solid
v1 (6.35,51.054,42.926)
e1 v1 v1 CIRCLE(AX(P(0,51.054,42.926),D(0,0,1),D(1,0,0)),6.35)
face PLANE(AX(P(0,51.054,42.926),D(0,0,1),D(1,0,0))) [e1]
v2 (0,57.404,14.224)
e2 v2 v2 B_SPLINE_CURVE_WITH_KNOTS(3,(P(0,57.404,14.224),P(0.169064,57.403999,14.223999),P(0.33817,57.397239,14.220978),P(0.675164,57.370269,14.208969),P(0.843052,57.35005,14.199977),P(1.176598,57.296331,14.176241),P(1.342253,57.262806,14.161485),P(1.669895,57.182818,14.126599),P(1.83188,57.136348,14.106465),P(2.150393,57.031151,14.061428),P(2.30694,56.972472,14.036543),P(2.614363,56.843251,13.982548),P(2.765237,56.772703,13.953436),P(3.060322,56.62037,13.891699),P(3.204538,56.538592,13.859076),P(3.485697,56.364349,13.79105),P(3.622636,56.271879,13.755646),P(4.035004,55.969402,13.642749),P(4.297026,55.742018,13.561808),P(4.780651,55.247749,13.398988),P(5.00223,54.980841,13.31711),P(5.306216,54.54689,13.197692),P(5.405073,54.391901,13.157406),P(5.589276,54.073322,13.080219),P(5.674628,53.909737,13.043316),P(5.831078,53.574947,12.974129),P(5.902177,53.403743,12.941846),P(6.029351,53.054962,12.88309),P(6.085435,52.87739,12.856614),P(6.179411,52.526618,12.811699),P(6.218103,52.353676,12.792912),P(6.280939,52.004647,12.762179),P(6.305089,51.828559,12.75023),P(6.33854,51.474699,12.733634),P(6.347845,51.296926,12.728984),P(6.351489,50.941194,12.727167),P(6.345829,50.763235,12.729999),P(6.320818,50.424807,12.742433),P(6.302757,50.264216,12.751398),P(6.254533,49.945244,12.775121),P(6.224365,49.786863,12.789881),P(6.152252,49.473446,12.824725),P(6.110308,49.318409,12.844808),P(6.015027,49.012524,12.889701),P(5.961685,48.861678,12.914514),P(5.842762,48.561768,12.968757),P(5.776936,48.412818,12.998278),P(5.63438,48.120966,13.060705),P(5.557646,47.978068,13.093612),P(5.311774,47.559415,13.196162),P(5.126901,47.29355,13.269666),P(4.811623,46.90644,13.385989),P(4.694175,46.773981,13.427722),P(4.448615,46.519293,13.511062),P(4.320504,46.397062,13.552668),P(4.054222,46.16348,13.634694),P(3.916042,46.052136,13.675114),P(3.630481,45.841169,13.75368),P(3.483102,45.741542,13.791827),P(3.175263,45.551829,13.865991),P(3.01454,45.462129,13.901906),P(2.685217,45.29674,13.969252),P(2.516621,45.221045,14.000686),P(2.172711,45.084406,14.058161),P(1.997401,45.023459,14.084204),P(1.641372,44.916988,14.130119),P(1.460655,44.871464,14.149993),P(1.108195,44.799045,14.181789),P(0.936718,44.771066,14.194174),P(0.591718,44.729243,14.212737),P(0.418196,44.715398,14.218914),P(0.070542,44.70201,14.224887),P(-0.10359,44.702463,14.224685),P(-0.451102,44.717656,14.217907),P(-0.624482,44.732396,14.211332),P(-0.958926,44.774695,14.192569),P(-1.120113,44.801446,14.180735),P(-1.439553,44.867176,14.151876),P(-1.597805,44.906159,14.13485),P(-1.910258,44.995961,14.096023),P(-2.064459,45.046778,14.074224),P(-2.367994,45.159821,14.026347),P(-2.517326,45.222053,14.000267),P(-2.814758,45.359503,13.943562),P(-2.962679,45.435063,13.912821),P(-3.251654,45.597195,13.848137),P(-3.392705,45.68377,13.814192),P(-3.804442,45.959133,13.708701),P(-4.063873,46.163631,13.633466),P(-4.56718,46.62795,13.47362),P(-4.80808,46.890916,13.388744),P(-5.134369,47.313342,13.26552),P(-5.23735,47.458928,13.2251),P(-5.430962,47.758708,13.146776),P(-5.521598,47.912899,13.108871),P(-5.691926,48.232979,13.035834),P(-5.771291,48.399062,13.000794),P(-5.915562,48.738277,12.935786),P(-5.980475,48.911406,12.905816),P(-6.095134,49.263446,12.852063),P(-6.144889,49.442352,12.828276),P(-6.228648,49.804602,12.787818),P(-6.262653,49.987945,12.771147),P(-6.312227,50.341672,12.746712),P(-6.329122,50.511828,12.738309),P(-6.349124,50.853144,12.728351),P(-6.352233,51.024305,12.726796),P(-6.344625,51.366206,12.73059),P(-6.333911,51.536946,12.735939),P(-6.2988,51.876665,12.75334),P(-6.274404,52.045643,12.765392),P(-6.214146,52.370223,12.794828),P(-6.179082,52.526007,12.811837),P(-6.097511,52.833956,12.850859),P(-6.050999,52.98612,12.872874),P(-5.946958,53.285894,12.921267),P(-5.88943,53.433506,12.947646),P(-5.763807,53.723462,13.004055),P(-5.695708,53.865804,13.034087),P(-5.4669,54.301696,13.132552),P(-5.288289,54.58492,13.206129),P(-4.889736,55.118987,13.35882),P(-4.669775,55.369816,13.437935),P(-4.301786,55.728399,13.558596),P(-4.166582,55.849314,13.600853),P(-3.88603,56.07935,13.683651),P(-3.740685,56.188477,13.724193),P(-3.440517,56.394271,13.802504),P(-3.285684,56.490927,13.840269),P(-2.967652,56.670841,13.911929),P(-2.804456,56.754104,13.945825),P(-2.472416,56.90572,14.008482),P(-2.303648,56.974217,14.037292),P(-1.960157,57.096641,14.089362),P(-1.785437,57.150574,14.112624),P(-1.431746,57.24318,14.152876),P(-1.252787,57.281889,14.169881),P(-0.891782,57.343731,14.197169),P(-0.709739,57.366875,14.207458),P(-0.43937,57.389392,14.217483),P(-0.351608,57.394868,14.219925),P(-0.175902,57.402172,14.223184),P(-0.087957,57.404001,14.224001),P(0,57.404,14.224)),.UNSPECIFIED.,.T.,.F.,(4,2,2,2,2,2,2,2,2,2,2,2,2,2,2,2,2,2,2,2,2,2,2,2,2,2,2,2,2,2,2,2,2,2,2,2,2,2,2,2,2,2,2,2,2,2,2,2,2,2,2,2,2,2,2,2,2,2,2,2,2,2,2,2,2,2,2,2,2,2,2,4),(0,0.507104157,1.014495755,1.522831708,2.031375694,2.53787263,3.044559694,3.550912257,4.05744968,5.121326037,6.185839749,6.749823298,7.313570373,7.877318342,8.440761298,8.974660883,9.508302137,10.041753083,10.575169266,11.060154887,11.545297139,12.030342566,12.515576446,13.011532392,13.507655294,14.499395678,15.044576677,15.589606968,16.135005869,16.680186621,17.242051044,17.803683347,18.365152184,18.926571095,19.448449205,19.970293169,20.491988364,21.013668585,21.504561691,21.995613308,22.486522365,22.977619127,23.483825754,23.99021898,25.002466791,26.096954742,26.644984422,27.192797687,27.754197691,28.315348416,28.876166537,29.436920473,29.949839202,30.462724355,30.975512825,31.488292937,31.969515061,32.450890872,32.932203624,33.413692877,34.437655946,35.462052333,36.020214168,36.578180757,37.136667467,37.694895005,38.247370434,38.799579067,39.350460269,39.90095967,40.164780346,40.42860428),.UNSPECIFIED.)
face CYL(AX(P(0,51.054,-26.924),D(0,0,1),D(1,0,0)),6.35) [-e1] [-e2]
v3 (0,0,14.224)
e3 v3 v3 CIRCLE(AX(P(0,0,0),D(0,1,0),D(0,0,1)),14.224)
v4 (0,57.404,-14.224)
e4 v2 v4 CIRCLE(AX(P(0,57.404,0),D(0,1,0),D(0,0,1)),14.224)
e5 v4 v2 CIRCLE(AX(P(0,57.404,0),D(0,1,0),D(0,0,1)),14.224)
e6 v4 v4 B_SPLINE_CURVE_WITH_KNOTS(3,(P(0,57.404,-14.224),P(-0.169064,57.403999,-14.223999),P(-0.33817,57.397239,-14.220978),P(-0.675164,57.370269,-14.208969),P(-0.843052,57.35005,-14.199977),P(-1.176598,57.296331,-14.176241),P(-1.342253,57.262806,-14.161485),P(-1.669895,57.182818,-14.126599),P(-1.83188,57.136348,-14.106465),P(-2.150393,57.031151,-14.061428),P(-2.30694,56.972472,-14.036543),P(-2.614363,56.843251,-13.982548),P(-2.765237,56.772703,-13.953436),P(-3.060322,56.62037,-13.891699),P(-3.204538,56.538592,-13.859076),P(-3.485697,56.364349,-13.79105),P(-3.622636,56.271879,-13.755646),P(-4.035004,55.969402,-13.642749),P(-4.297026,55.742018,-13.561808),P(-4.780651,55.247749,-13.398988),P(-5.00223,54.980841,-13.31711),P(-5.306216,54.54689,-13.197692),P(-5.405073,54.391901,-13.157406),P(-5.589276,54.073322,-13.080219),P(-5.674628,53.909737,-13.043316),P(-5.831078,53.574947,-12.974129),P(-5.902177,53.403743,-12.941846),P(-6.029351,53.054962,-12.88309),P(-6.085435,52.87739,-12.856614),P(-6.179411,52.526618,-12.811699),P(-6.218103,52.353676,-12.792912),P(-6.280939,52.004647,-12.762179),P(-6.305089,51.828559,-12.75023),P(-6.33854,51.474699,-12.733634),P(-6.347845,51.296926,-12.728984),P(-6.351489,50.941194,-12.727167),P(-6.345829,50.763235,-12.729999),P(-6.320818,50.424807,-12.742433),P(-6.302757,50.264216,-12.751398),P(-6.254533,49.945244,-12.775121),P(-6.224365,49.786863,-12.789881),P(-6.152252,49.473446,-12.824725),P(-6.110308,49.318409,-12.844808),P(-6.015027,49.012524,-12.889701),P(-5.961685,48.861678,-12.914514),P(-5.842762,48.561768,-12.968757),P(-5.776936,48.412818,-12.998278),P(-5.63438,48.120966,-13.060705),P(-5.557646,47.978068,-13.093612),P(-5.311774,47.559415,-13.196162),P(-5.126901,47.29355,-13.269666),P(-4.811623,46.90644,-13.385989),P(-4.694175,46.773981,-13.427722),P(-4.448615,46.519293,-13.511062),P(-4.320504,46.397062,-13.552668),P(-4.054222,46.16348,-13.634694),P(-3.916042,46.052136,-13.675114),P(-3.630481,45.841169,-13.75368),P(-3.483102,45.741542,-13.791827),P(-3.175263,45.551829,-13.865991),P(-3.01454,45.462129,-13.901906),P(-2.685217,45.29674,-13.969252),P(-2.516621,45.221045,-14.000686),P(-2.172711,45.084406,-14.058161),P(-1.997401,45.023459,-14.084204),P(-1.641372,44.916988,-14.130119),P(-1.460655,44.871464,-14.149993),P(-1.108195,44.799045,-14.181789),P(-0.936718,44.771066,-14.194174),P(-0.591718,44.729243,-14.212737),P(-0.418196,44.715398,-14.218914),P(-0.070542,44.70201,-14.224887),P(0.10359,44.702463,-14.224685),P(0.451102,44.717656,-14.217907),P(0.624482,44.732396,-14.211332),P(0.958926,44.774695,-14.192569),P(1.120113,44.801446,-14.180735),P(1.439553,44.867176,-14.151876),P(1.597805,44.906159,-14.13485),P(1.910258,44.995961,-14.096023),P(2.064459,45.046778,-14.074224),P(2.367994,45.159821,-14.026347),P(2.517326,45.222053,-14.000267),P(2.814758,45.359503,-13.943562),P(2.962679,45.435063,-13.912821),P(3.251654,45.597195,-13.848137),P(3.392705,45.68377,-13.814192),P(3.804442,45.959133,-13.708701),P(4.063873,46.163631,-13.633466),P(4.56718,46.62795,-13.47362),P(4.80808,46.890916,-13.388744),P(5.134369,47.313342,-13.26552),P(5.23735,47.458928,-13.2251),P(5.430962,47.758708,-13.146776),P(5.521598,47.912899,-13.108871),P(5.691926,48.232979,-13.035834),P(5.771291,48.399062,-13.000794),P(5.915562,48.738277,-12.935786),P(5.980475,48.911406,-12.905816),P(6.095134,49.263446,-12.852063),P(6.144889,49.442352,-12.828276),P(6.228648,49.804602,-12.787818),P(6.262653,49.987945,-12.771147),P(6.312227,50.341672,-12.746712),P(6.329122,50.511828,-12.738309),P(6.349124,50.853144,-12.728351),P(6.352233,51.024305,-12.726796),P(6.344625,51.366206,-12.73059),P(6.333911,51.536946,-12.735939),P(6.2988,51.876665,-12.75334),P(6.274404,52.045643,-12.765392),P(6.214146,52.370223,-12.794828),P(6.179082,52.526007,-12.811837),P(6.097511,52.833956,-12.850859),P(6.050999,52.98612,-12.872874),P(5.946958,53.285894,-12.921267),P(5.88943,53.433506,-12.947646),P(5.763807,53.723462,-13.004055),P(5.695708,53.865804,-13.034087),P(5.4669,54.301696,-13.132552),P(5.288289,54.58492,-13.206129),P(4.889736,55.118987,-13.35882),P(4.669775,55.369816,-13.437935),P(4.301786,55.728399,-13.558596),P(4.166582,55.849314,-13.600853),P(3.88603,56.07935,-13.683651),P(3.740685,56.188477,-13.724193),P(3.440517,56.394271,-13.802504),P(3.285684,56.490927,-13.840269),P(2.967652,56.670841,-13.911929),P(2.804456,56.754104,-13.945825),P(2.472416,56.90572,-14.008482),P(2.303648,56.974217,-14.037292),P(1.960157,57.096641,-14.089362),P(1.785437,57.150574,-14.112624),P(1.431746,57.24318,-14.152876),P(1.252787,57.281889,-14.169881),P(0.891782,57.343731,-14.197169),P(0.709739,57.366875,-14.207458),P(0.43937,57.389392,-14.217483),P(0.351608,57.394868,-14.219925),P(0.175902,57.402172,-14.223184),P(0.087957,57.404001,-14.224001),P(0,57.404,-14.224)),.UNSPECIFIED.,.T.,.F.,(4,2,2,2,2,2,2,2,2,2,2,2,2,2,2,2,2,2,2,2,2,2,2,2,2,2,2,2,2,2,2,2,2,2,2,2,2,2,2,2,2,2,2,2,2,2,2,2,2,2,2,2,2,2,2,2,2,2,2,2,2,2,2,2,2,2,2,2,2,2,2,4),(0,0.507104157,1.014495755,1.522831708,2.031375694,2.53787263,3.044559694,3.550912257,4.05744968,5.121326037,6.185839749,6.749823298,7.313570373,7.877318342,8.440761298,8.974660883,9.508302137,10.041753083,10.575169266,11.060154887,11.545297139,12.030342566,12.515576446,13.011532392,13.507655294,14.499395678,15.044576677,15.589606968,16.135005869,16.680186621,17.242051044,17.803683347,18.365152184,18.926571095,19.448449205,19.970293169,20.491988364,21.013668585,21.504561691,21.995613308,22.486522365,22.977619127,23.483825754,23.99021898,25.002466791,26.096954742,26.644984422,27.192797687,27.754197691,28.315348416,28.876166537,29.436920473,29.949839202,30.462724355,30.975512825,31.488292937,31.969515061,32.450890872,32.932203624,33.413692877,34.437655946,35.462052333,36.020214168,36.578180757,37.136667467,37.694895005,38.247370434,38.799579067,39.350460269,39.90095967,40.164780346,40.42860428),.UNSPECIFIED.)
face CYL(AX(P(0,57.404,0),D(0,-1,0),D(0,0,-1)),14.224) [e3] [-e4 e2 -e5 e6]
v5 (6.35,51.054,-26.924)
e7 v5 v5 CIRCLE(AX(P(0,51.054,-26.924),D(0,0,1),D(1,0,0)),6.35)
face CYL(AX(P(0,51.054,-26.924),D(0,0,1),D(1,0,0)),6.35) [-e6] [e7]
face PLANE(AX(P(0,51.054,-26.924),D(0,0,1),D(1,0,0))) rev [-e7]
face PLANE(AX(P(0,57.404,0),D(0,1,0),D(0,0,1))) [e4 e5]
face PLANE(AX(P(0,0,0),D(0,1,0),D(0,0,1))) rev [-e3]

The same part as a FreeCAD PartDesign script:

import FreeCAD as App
import Part
import Sketcher
Q = App.Units.Quantity

doc = App.newDocument("Part")
body = doc.addObject("PartDesign::Body", "Body")

# Sketch on XZ plane
sketch1 = body.newObject("Sketcher::SketchObject", "Sketch")
sketch1.AttachmentSupport = (doc.getObject("XZ_Plane"), [""])
sketch1.MapMode = "FlatFace"
sketch1.addGeometry(Part.Circle(App.Vector(0, 0, 0), App.Vector(0, 0, 1), 14.224), False)
sketch1.addConstraint(Sketcher.Constraint("Coincident", 0, 3, -1, 1))
sketch1.addConstraint(Sketcher.Constraint("Diameter", 0, Q("1.12 in")))
pad1 = body.newObject("PartDesign::Pad", "Pad")
pad1.Profile = sketch1
pad1.Length = Q("2.26 in")
pad1.Reversed = True

# Sketch on XY plane
sketch2 = body.newObject("Sketcher::SketchObject", "Sketch001")
sketch2.AttachmentSupport = (doc.getObject("XY_Plane"), [""])
sketch2.MapMode = "FlatFace"
sketch2.AttachmentOffset = App.Placement(App.Vector(0, 0, 0.56 * 25.4), App.Rotation())
sketch2.addGeometry(Part.Circle(App.Vector(0, 51.054, 0), App.Vector(0, 0, 1), 6.35), False)
sketch2.addConstraint(Sketcher.Constraint("PointOnObject", 0, 3, -2))
sketch2.addConstraint(Sketcher.Constraint("Diameter", 0, Q("0.5 in")))
sketch2.addConstraint(Sketcher.Constraint("DistanceY", -1, 1, 0, 3, Q("2.01 in")))
pad2 = body.newObject("PartDesign::Pad", "Pad001")
pad2.Profile = sketch2
pad2.Type = "TwoLengths"
pad2.Length = Q("1.13 in")
pad2.Length2 = Q("1.62 in")

doc.recompute()
